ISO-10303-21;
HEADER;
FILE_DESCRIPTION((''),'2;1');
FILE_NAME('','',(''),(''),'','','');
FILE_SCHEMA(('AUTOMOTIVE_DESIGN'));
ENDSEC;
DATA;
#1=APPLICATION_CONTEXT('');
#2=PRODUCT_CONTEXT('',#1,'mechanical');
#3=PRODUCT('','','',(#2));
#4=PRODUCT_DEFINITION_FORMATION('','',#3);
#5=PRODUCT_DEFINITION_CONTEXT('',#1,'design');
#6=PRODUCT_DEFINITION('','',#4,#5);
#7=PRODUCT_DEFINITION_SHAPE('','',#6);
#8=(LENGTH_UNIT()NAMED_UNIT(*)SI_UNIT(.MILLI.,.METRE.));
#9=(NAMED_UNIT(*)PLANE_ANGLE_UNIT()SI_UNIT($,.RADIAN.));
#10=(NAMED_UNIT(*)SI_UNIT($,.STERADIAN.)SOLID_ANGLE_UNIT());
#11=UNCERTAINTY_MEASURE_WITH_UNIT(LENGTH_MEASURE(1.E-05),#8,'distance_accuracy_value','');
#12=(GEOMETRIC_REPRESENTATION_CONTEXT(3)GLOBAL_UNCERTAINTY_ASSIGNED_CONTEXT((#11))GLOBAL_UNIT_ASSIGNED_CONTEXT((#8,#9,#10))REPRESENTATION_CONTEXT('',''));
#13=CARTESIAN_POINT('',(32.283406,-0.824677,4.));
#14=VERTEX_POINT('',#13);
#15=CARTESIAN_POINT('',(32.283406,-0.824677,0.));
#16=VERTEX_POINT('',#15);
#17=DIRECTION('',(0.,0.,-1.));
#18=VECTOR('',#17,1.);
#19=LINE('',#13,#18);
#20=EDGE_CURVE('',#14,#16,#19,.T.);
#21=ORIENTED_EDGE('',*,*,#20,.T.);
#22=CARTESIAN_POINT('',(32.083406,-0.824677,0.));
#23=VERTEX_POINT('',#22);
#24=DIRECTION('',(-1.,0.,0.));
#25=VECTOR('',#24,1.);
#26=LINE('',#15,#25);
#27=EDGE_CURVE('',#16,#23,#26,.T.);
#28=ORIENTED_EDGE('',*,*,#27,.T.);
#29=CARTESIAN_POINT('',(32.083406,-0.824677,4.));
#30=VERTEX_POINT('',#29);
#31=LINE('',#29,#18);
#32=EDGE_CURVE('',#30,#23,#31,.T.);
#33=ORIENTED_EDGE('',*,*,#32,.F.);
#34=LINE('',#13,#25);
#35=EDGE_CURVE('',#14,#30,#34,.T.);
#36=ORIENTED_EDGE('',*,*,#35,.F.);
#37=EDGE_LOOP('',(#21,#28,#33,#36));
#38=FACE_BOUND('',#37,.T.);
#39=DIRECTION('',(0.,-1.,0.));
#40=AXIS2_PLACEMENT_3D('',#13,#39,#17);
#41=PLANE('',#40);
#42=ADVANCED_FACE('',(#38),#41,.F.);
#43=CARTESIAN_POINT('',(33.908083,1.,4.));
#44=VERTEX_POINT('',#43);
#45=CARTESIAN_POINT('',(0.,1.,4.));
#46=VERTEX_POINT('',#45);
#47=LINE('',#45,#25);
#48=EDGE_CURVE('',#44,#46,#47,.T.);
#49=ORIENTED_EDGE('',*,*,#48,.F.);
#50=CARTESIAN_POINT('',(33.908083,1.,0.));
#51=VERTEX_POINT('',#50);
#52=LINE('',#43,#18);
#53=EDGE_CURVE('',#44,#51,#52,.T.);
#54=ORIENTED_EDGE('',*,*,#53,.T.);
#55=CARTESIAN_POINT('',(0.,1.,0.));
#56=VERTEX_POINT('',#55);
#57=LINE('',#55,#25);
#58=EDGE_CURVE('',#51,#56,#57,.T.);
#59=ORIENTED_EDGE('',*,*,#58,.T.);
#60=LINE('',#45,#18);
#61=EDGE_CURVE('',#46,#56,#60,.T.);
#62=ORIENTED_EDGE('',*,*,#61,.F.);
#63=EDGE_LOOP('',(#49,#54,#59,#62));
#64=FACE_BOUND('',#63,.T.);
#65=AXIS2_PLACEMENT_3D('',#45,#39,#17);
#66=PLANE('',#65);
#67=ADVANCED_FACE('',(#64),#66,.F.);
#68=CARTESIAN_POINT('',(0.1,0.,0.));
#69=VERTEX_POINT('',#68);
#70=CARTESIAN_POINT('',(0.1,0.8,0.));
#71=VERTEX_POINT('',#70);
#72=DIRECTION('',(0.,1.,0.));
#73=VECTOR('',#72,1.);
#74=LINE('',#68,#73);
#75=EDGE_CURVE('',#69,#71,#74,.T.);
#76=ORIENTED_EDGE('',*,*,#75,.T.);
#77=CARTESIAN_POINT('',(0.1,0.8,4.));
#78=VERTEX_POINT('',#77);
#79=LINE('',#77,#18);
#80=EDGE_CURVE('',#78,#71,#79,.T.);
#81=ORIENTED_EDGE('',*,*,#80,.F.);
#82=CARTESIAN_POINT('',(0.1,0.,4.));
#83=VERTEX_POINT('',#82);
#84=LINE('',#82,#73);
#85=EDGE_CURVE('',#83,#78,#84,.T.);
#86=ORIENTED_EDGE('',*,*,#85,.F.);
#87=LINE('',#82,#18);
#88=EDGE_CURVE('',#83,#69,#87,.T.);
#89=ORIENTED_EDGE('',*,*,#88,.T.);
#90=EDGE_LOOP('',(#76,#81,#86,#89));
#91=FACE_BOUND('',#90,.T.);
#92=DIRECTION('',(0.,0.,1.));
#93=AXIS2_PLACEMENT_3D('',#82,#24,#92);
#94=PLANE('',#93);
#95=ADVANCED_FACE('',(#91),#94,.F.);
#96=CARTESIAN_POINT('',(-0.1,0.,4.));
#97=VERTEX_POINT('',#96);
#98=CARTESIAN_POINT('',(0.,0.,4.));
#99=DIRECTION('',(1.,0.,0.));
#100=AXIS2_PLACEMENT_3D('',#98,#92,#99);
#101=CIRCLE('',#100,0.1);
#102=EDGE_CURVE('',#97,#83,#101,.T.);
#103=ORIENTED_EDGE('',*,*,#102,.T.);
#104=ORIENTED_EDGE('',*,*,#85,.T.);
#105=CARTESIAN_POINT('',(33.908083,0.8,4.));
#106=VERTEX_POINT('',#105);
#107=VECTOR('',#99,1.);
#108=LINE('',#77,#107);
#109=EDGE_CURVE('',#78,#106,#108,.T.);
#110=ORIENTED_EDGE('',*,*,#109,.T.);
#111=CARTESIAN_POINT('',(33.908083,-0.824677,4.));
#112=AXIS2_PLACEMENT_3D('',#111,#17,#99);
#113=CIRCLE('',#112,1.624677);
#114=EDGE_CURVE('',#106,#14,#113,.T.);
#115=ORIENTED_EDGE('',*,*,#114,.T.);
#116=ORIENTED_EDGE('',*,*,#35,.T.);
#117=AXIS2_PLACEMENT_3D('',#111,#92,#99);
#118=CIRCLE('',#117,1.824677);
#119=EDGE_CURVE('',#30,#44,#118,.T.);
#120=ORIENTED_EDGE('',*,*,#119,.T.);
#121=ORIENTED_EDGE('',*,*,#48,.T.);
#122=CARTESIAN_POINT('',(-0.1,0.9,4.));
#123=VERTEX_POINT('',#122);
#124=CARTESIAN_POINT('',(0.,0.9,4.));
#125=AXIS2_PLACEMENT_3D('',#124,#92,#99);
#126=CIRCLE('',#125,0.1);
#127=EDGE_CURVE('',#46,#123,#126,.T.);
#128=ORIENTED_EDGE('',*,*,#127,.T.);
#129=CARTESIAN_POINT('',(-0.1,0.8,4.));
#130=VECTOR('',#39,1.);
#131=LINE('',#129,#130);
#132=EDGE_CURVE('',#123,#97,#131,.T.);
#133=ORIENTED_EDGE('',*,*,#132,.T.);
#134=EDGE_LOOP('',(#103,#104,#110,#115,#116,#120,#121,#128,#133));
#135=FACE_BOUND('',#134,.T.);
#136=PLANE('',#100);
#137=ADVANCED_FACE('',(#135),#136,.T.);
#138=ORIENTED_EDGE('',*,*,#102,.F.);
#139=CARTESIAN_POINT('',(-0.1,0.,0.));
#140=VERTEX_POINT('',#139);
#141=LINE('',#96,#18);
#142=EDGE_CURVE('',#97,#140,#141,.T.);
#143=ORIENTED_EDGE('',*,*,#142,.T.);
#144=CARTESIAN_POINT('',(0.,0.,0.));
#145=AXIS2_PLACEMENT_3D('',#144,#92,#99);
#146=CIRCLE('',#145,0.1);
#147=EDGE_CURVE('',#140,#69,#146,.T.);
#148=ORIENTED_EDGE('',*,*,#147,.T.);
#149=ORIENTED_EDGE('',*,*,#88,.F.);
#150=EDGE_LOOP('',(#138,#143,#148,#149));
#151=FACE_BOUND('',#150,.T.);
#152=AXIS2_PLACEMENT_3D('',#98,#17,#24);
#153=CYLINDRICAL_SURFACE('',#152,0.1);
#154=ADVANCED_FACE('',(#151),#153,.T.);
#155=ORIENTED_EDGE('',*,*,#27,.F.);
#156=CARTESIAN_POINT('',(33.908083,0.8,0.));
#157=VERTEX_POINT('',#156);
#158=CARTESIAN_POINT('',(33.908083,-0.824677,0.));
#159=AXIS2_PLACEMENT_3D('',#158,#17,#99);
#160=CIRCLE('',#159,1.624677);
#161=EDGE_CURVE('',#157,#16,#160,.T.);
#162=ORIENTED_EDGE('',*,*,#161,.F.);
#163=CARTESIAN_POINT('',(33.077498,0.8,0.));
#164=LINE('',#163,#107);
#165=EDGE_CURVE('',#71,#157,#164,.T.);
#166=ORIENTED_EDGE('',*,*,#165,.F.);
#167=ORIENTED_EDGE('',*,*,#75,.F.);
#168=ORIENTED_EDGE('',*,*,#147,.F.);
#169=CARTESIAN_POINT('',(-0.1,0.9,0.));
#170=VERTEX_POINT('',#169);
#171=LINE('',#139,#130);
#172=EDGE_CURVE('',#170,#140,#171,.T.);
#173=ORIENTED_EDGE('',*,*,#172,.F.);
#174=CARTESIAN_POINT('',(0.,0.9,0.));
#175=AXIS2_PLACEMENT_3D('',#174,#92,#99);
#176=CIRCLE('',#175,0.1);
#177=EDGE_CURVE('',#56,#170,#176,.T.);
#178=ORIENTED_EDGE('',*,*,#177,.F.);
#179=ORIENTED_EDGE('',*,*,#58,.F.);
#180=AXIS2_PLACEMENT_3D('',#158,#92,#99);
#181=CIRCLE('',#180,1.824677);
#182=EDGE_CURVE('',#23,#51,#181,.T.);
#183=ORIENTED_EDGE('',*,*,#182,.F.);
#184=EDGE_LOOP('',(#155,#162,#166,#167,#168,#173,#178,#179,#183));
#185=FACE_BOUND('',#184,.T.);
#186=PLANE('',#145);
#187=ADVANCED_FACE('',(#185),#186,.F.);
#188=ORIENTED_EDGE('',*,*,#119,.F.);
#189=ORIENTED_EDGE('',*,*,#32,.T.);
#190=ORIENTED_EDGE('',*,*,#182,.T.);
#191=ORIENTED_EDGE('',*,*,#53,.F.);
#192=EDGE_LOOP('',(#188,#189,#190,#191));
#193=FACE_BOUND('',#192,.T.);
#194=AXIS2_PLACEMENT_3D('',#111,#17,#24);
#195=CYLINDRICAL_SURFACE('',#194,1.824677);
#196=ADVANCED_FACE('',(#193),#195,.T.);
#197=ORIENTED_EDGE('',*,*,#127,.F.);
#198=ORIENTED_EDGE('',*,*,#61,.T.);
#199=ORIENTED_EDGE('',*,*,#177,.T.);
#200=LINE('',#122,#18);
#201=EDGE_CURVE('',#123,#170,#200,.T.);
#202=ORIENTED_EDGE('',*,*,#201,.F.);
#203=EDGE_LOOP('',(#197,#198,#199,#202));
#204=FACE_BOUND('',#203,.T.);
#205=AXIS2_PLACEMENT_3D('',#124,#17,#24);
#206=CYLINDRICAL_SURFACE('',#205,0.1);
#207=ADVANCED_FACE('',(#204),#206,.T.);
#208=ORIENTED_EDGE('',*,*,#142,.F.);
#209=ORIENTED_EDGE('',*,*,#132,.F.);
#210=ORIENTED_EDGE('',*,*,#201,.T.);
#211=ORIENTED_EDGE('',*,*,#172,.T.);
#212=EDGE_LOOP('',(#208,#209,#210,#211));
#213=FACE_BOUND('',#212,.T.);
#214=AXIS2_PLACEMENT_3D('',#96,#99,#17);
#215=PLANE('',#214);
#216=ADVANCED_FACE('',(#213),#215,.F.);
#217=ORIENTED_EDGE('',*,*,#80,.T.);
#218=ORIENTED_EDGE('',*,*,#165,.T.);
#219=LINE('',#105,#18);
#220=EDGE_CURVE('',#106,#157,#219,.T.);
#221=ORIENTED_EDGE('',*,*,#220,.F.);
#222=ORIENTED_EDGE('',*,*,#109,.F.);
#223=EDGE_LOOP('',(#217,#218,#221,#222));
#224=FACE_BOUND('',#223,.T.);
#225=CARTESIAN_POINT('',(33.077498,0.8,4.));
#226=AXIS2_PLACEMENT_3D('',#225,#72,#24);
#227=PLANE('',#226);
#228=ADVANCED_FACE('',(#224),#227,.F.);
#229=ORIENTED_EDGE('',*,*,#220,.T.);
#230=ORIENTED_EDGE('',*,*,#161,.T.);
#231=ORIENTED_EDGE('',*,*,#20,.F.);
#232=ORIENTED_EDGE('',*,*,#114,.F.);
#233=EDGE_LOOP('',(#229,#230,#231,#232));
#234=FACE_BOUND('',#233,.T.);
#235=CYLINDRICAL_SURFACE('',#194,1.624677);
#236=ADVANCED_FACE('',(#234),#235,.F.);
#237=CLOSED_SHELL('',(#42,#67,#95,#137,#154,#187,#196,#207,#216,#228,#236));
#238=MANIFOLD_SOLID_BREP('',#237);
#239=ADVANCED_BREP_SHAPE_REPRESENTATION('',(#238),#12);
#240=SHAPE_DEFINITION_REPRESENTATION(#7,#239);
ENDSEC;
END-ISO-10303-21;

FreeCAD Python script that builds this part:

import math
import FreeCAD as App
import Part
import Sketcher
Q = App.Units.Quantity

doc = App.newDocument("Part")
body = doc.addObject("PartDesign::Body", "Body")

# Sketch on XY plane
sketch1 = body.newObject("Sketcher::SketchObject", "Sketch")
sketch1.AttachmentSupport = (doc.getObject("XY_Plane"), [""])
sketch1.MapMode = "FlatFace"
sketch1.addGeometry(Part.LineSegment(App.Vector(0.1, 0, 0), App.Vector(0.1, 0.8, 0)), False)
sketch1.addGeometry(Part.LineSegment(App.Vector(0.1, 0.8, 0), App.Vector(33.91, 0.8, 0)), False)
sketch1.addGeometry(Part.ArcOfCircle(Part.Circle(App.Vector(33.91, -0.82, 0), App.Vector(0, 0, 1), 1.62), math.radians(180), math.radians(450)), False)
sketch1.addGeometry(Part.LineSegment(App.Vector(32.28, -0.82, 0), App.Vector(32.08, -0.82, 0)), False)
sketch1.addGeometry(Part.ArcOfCircle(Part.Circle(App.Vector(33.91, -0.82, 0), App.Vector(0, 0, 1), 1.82), math.radians(180), math.radians(450)), False)
sketch1.addGeometry(Part.LineSegment(App.Vector(33.91, 1, 0), App.Vector(0, 1, 0)), False)
sketch1.addGeometry(Part.ArcOfCircle(Part.Circle(App.Vector(0, 0.9, 0), App.Vector(0, 0, 1), 0.1), math.radians(90), math.radians(180)), False)
sketch1.addGeometry(Part.LineSegment(App.Vector(-0.1, 0.9, 0), App.Vector(-0.1, 0, 0)), False)
sketch1.addGeometry(Part.ArcOfCircle(Part.Circle(App.Vector(0, 0, 0), App.Vector(0, 0, 1), 0.1), math.radians(180), math.radians(360)), False)
sketch1.addConstraint(Sketcher.Constraint("Coincident", 0, 2, 1, 1))
sketch1.addConstraint(Sketcher.Constraint("Tangent", 1, 2, 2, 2))
sketch1.addConstraint(Sketcher.Constraint("Coincident", 2, 1, 3, 1))
sketch1.addConstraint(Sketcher.Constraint("Coincident", 3, 2, 4, 1))
sketch1.addConstraint(Sketcher.Constraint("Tangent", 4, 2, 5, 1))
sketch1.addConstraint(Sketcher.Constraint("Tangent", 5, 2, 6, 1))
sketch1.addConstraint(Sketcher.Constraint("Tangent", 6, 2, 7, 1))
sketch1.addConstraint(Sketcher.Constraint("Tangent", 7, 2, 8, 1))
sketch1.addConstraint(Sketcher.Constraint("Tangent", 8, 2, 0, 1))
sketch1.addConstraint(Sketcher.Constraint("Vertical", 0))
sketch1.addConstraint(Sketcher.Constraint("Horizontal", 1))
sketch1.addConstraint(Sketcher.Constraint("Horizontal", 3))
sketch1.addConstraint(Sketcher.Constraint("Horizontal", 5))
sketch1.addConstraint(Sketcher.Constraint("Vertical", 7))
sketch1.addConstraint(Sketcher.Constraint("Coincident", 8, 3, -1, 1))
sketch1.addConstraint(Sketcher.Constraint("Coincident", 4, 3, 2, 3))
sketch1.addConstraint(Sketcher.Constraint("Equal", 6, 8))
sketch1.addConstraint(Sketcher.Constraint("Horizontal", 4, 3, 2, 1))
sketch1.addConstraint(Sketcher.Constraint("Radius", 6, Q("0.1 mm")))
sketch1.addConstraint(Sketcher.Constraint("DistanceX", 3, 2, 3, 1, Q("0.2 mm")))
sketch1.addConstraint(Sketcher.Constraint("DistanceY", 0, 1, 0, 2, Q("0.8 mm")))
sketch1.addConstraint(Sketcher.Constraint("Radius", 2, Q("1.624677 mm")))
sketch1.addConstraint(Sketcher.Constraint("DistanceX", 1, 1, 1, 2, Q("33.808083 mm")))
pad1 = body.newObject("PartDesign::Pad", "Pad")
pad1.Profile = sketch1
pad1.Length = 4

doc.recompute()
